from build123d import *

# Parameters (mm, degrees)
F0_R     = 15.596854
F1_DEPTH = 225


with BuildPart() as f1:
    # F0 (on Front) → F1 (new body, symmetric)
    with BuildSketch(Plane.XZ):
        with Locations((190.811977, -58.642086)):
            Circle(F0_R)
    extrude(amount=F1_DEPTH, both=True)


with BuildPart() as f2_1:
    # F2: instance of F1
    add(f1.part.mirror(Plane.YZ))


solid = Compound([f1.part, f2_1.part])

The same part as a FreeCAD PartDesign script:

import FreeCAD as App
import Part
import Sketcher
from FreeCAD import Vector

doc = App.newDocument("Part")
body = doc.addObject("PartDesign::Body", "Body")

# Sketch on XZ plane
sketch1 = body.newObject("Sketcher::SketchObject", "Sketch")
sketch1.AttachmentSupport = (doc.getObject("XZ_Plane"), [""])
sketch1.MapMode = "FlatFace"
sketch1.addGeometry(Part.Circle(Vector(191, -59, 0), Vector(0, 0, 1), 16), False)
sketch1.addConstraint([
    Sketcher.Constraint("Diameter", 0, 31.193708),
    Sketcher.Constraint("DistanceX", -1, 1, 0, 3, 190.811977),
    Sketcher.Constraint("DistanceY", 0, 3, -1, 1, 58.642086),
])
pad1 = body.newObject("PartDesign::Pad", "Pad")
pad1.Profile = sketch1
pad1.Length = 450
pad1.Midplane = True
body2 = doc.addObject("PartDesign::Body", "Body001")
doc.recompute()

mirroring = doc.addObject("Part::Mirroring", "Mirroring")
mirroring.Source = body
mirroring.Base = Vector(0, 0, 0)
mirroring.Normal = Vector(1, 0, 0)
body2.BaseFeature = mirroring
doc.recompute()
mirroring.Visibility = False

doc.recompute()
